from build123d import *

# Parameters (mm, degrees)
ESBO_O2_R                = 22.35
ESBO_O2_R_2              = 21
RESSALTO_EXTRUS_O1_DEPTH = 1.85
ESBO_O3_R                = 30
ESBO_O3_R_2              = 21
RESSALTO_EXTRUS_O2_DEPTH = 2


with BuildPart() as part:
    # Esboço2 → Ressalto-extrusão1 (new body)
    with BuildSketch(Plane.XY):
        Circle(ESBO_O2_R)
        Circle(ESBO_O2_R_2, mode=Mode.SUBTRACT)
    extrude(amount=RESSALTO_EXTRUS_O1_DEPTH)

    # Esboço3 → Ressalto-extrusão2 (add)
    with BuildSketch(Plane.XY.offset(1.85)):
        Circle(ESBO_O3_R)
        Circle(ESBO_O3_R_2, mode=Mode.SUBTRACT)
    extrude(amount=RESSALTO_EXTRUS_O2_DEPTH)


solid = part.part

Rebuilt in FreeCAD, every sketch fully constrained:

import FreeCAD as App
import Part
import Sketcher
from FreeCAD import Vector

doc = App.newDocument("Part")
body = doc.addObject("PartDesign::Body", "Body")

# Sketch on XY plane
sketch1 = doc.addObject("Sketcher::SketchObject", "Sketch")
body.addObject(sketch1)
sketch1.AttachmentSupport = (doc.XY_Plane, [""])
sketch1.MapMode = "FlatFace"
sketch1.addGeometry(Part.Circle(Vector(0, 0, 0), Vector(0, 0, 1), 22), False)
sketch1.addGeometry(Part.Circle(Vector(0, 0, 0), Vector(0, 0, 1), 21), False)
sketch1.addConstraint(Sketcher.Constraint("Coincident", 0, 3, -1, 1))
sketch1.addConstraint(Sketcher.Constraint("Coincident", 1, 3, -1, 1))
sketch1.addConstraint(Sketcher.Constraint("Diameter", 1, 42.0))
sketch1.addConstraint(Sketcher.Constraint("Diameter", 0, 44.7))
pad1 = doc.addObject("PartDesign::Pad", "Pad")
body.addObject(pad1)
pad1.Profile = sketch1
pad1.Length = 1.85

# Sketch on XY plane
sketch2 = doc.addObject("Sketcher::SketchObject", "Sketch001")
body.addObject(sketch2)
sketch2.AttachmentSupport = (doc.XY_Plane, [""])
sketch2.MapMode = "FlatFace"
sketch2.AttachmentOffset = App.Placement(Vector(0, 0, 1.85), App.Rotation())
sketch2.addGeometry(Part.Circle(Vector(0, 0, 0), Vector(0, 0, 1), 30), False)
sketch2.addGeometry(Part.Circle(Vector(0, 0, 0), Vector(0, 0, 1), 21), False)
sketch2.addConstraint(Sketcher.Constraint("Coincident", 0, 3, -1, 1))
sketch2.addConstraint(Sketcher.Constraint("Coincident", 1, 3, -1, 1))
sketch2.addConstraint(Sketcher.Constraint("Diameter", 0, 60.0))
sketch2.addConstraint(Sketcher.Constraint("Diameter", 1, 42.0))
pad2 = doc.addObject("PartDesign::Pad", "Pad001")
body.addObject(pad2)
pad2.Profile = sketch2
pad2.Length = 2

doc.recompute()
